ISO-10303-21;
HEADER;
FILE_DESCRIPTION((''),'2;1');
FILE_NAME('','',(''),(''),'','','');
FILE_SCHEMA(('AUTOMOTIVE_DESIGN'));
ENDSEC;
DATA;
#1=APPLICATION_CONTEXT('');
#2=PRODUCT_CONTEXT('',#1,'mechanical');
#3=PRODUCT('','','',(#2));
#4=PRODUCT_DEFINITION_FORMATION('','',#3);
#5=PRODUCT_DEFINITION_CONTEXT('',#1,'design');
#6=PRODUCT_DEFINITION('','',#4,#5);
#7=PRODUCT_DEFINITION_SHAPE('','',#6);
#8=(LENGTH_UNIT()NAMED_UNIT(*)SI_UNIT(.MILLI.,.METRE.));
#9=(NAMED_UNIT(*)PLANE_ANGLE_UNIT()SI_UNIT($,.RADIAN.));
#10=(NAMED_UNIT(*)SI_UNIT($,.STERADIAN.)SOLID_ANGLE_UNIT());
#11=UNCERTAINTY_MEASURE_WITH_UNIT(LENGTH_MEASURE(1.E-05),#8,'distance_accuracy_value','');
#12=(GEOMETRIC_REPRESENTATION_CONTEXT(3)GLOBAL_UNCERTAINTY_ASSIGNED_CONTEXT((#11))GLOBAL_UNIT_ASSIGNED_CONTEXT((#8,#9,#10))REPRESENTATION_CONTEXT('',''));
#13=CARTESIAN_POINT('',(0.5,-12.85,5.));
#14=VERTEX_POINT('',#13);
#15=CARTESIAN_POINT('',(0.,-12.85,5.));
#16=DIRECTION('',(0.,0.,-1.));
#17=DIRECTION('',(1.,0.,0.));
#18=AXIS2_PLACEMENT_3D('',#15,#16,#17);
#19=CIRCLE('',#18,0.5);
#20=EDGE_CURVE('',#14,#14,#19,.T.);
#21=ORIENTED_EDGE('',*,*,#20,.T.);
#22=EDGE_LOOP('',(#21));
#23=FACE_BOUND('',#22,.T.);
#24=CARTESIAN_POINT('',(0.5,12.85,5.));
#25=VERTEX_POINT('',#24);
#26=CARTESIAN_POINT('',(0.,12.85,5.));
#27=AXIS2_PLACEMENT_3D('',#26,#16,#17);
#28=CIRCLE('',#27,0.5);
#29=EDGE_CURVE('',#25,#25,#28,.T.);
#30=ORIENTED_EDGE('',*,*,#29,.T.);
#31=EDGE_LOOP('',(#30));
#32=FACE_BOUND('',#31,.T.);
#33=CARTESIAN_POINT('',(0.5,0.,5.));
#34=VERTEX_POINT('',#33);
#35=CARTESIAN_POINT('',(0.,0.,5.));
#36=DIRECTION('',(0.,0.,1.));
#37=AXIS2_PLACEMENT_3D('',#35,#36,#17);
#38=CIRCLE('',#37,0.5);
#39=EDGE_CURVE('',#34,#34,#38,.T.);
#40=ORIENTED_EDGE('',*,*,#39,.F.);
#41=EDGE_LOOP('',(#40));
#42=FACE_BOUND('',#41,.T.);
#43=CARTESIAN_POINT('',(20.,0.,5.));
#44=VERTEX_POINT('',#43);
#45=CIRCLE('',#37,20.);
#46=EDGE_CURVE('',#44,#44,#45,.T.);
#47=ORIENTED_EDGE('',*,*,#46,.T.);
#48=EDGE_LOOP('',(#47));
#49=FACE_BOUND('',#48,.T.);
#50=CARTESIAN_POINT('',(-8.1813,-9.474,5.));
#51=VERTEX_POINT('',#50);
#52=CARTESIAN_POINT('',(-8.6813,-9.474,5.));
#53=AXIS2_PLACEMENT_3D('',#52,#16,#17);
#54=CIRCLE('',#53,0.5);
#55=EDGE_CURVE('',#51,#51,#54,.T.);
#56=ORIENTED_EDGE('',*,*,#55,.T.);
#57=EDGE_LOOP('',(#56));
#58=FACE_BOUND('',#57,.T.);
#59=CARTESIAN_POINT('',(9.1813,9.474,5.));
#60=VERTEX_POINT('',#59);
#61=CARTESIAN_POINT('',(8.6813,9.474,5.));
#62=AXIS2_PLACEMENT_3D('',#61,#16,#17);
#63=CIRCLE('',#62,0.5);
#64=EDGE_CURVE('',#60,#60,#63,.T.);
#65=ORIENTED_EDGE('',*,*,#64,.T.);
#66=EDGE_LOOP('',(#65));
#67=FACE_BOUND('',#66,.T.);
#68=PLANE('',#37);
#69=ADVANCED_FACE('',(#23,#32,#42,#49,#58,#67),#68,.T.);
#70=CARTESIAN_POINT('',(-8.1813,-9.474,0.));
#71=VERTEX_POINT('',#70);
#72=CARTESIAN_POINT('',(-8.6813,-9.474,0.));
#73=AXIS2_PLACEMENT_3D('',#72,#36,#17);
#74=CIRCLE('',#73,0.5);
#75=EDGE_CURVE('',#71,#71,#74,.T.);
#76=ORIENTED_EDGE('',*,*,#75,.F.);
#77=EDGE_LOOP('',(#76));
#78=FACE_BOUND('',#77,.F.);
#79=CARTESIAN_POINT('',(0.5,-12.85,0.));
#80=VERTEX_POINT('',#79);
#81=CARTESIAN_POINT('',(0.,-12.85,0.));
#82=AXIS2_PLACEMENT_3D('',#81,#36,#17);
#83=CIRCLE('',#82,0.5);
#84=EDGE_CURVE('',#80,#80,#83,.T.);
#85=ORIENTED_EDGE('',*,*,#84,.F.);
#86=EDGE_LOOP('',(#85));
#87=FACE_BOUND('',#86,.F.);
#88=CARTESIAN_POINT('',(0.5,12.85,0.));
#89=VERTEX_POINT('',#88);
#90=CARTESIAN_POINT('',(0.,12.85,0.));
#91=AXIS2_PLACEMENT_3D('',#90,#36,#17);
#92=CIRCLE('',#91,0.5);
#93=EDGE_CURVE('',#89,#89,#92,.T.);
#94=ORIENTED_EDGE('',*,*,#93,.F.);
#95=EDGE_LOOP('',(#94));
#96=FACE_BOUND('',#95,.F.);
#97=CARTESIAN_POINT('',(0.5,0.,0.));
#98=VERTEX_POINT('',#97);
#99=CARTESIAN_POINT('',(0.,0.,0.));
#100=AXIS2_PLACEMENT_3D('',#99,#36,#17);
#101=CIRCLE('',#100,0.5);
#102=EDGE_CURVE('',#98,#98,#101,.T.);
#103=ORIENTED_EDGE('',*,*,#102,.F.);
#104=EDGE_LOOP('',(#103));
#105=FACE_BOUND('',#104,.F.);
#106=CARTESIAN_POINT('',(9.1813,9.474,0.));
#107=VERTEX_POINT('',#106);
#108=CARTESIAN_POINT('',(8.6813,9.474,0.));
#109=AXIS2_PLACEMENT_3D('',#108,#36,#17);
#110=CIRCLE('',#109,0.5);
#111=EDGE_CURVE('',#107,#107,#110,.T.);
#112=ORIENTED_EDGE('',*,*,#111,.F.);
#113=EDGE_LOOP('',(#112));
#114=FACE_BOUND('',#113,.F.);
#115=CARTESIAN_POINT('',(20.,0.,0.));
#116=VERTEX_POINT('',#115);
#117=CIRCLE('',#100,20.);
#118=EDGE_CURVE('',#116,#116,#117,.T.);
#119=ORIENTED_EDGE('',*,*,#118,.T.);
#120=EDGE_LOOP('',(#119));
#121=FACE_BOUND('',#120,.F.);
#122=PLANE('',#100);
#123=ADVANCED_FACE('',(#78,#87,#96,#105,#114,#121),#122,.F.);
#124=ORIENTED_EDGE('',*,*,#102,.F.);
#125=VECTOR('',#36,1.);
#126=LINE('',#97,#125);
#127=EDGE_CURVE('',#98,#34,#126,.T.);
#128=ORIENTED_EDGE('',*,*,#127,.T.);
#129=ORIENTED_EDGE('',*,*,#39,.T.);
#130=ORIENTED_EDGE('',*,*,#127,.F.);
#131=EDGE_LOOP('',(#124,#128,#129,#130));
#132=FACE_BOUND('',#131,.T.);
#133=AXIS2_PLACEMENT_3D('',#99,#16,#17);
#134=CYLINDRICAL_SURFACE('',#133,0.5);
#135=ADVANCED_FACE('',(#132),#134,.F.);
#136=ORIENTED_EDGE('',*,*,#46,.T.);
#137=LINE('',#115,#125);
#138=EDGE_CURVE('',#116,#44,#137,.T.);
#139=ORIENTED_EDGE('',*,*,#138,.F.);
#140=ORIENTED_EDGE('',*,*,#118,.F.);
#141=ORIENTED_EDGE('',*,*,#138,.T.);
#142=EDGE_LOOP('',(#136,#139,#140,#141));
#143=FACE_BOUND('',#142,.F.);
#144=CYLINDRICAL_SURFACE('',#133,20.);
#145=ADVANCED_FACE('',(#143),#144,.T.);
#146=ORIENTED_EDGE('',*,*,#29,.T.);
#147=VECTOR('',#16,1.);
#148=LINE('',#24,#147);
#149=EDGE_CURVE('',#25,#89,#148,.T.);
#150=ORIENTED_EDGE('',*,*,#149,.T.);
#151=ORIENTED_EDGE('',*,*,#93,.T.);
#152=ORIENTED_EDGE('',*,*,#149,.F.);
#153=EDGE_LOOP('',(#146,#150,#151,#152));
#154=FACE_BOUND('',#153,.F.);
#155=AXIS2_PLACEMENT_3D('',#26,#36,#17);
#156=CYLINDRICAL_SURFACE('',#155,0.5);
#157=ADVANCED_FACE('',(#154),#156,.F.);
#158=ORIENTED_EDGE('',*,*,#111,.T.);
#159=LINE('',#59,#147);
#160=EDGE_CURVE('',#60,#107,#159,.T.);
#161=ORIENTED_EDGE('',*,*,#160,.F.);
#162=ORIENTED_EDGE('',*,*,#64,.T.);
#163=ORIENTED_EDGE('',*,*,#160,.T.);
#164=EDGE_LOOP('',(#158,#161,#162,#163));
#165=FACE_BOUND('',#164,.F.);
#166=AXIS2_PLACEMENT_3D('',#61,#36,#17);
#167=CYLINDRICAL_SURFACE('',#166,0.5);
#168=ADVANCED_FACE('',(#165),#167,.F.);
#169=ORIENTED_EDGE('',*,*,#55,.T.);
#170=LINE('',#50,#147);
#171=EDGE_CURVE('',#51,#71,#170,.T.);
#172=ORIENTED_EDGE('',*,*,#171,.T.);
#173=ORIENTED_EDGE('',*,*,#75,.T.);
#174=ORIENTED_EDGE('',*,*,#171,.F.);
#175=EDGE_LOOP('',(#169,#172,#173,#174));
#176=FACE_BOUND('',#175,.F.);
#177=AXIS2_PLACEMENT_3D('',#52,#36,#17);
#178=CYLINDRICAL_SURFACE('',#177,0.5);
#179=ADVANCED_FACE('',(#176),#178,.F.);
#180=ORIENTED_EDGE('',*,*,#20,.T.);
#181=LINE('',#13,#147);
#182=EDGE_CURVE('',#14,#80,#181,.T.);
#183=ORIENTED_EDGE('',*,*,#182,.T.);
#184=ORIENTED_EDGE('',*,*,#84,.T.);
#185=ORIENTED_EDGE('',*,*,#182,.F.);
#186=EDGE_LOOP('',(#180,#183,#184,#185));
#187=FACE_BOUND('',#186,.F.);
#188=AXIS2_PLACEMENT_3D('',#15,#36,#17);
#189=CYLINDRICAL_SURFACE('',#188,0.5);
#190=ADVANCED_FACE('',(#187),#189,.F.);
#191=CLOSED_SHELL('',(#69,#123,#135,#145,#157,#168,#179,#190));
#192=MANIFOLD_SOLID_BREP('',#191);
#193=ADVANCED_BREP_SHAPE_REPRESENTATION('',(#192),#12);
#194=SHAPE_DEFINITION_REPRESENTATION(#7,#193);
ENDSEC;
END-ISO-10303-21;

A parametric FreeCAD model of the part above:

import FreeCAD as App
import Part
import Sketcher

V = App.Vector

doc = App.newDocument("Part")
params = doc.addObject("Spreadsheet::Sheet", "Params")
for row, (alias, value) in enumerate([
    ("sketch1_diameter", "40 mm"),
    ("sketch1_diameter2", "1 mm"),
    ("pad1_length", "5 mm"),
    ("sketch2_diameter", "1 mm"),
    ("pocket1_length", "5 mm"),
], start=1):
    params.set(f"A{row}", alias)
    params.set(f"B{row}", "=" + value)
    params.setAlias(f"B{row}", alias)

body = doc.addObject("PartDesign::Body", "Body")

# Sketch on XY plane
sketch1 = doc.addObject("Sketcher::SketchObject", "Sketch")
body.addObject(sketch1)
sketch1.AttachmentSupport = (doc.XY_Plane, [""])
sketch1.MapMode = "FlatFace"
sketch1.addGeometry(Part.Circle(V(0, 0, 0), V(0, 0, 1), 20), False)
sketch1.addGeometry(Part.Circle(V(0, 0, 0), V(0, 0, 1), 0.5), False)
sketch1.addConstraint(Sketcher.Constraint("Coincident", 0, 3, -1, 1))
sketch1.addConstraint(Sketcher.Constraint("Coincident", 1, 3, -1, 1))
sketch1.addConstraint(Sketcher.Constraint("Diameter", 0, 40.0))
sketch1.addConstraint(Sketcher.Constraint("Diameter", 1, 1.0))
sketch1.setExpression("Constraints[2]", "Params.sketch1_diameter")
sketch1.setExpression("Constraints[3]", "Params.sketch1_diameter2")
pad1 = doc.addObject("PartDesign::Pad", "Pad")
body.addObject(pad1)
pad1.Profile = sketch1
pad1.setExpression("Length", "Params.pad1_length")

# Sketch on XY plane
sketch2 = doc.addObject("Sketcher::SketchObject", "Sketch001")
body.addObject(sketch2)
sketch2.AttachmentSupport = (doc.XY_Plane, [""])
sketch2.MapMode = "FlatFace"
sketch2.AttachmentOffset = App.Placement(V(0, 0, 5), App.Rotation())
sketch2.addGeometry(Part.Circle(V(0, -12.8, 0), V(0, 0, 1), 0.5), False)
sketch2.addGeometry(Part.Circle(V(-8.7, -9.5, 0), V(0, 0, 1), 0.5), False)
sketch2.addGeometry(Part.Circle(V(0, 12.8, 0), V(0, 0, 1), 0.5), False)
sketch2.addGeometry(Part.Circle(V(8.7, 9.5, 0), V(0, 0, 1), 0.5), False)
sketch2.addConstraint(Sketcher.Constraint("Equal", 0, 1))
sketch2.addConstraint(Sketcher.Constraint("Equal", 1, 2))
sketch2.addConstraint(Sketcher.Constraint("Equal", 2, 3))
sketch2.addConstraint(Sketcher.Constraint("Symmetric", 0, 3, 2, 3, -1, 1))
sketch2.addConstraint(Sketcher.Constraint("Symmetric", 1, 3, 3, 3, -1, 1))
sketch2.addConstraint(Sketcher.Constraint("PointOnObject", 0, 3, -2))
sketch2.addConstraint(Sketcher.Constraint("Diameter", 0, 1.0))
sketch2.addConstraint(Sketcher.Constraint("DistanceY", 0, 3, -1, 1, 12.85))
sketch2.addConstraint(Sketcher.Constraint("DistanceY", 1, 3, -1, 1, 9.474))
sketch2.addConstraint(Sketcher.Constraint("DistanceX", 1, 3, -1, 1, 8.6813))
sketch2.setExpression("Constraints[6]", "Params.sketch2_diameter")
pocket1 = doc.addObject("PartDesign::Pocket", "Pocket")
body.addObject(pocket1)
pocket1.Profile = sketch2
pocket1.setExpression("Length", "Params.pocket1_length")

doc.recompute()
